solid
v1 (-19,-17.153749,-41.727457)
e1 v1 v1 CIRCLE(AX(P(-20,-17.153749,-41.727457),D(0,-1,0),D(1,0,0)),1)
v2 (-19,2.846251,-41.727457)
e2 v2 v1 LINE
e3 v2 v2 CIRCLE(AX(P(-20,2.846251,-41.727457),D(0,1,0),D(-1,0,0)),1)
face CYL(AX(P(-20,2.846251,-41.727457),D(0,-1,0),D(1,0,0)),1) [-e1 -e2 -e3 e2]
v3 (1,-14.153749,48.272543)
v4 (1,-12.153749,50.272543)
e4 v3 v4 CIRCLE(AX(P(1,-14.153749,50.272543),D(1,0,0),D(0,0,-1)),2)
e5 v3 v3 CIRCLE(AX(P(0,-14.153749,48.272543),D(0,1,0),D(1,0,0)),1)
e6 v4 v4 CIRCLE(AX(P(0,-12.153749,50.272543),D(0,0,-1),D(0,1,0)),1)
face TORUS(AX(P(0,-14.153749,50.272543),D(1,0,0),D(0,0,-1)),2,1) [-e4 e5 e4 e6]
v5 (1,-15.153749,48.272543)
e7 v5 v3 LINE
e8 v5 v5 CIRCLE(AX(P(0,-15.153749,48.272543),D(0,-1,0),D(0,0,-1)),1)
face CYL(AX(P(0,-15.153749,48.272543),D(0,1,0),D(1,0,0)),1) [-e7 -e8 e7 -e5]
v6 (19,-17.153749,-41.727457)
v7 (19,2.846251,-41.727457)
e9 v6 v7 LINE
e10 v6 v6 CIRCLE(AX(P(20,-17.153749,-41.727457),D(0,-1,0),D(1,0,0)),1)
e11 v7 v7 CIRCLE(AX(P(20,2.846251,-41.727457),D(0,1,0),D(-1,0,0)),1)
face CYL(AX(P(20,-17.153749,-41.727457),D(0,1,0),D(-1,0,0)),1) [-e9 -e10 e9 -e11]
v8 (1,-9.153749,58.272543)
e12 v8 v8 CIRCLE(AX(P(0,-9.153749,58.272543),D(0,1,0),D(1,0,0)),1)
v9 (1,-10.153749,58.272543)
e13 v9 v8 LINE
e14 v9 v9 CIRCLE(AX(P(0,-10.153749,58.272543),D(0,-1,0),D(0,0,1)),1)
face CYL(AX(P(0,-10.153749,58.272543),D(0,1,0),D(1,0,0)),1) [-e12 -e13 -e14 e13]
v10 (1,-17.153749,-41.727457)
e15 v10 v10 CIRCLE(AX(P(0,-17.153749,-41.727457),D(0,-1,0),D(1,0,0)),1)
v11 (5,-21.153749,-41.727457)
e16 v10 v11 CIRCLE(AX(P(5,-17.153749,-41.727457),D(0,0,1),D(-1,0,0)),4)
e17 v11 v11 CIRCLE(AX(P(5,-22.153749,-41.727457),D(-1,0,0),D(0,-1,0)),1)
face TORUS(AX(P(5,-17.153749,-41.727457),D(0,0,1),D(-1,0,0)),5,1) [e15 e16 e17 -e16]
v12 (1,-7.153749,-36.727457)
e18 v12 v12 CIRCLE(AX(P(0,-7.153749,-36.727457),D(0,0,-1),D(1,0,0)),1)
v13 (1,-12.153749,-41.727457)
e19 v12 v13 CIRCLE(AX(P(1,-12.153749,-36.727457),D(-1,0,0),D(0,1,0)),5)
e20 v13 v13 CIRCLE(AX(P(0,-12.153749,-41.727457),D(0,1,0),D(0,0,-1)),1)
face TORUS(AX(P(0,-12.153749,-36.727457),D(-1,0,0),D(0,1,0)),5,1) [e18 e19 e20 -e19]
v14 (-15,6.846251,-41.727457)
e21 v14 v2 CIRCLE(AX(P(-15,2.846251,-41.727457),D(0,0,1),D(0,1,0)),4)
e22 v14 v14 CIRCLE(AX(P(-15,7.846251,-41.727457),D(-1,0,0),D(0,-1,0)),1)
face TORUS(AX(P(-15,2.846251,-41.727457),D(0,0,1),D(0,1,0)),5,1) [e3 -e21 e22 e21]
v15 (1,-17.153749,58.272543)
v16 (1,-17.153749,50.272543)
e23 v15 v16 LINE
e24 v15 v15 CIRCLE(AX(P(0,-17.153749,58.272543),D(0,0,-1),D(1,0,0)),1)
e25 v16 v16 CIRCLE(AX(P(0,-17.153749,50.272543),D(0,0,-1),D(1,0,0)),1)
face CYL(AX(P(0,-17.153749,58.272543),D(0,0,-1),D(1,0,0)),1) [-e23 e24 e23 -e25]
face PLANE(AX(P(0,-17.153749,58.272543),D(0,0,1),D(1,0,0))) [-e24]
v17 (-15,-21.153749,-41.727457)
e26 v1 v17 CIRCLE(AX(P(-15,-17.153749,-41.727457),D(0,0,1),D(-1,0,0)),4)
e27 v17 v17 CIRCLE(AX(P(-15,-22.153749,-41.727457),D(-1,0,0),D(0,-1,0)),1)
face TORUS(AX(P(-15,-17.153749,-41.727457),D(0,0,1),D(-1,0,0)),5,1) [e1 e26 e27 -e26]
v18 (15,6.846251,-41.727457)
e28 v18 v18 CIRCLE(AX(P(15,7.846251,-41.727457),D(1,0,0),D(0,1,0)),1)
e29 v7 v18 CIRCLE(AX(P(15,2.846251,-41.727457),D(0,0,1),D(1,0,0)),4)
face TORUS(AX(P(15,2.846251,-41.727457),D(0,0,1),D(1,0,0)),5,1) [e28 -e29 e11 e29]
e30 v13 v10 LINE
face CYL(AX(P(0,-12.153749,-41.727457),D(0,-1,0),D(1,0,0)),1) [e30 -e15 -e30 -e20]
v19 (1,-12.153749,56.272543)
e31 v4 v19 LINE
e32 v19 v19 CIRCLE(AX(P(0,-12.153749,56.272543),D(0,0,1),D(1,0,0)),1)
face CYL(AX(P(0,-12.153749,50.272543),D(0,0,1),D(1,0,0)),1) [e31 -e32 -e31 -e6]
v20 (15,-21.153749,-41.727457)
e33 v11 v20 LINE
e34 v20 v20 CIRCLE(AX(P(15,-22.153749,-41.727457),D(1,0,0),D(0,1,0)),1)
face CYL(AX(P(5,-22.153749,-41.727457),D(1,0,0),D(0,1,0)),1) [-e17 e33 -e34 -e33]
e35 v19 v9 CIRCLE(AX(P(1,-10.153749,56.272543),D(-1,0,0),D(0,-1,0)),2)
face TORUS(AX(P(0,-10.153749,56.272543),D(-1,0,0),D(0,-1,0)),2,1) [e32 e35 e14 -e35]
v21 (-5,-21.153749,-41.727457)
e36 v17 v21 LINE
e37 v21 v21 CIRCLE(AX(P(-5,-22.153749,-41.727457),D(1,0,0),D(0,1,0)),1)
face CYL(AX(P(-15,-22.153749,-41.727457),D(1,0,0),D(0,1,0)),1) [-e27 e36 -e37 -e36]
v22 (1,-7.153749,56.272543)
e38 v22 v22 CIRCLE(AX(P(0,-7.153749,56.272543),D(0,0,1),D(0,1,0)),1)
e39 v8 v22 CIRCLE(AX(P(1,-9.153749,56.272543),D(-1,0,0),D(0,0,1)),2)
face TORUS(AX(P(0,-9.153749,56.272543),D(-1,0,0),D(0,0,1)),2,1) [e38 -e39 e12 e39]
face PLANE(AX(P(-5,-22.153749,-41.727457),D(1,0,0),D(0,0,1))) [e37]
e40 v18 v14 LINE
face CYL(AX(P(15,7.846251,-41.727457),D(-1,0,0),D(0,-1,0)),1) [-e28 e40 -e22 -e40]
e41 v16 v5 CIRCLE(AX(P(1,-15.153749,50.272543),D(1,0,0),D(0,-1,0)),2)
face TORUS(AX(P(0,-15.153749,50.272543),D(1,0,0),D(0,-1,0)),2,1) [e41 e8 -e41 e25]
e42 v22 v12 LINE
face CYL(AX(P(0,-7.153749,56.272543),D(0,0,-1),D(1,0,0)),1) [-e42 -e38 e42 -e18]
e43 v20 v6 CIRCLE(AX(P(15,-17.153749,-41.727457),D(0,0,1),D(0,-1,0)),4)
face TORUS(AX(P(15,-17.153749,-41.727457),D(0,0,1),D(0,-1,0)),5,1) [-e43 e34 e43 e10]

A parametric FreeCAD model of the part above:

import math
import FreeCAD as App
import Part
import Sketcher

doc = App.newDocument("Part")
body = doc.addObject("PartDesign::Body", "Body")

# Sketch on XY plane
sketch1 = doc.addObject("Sketcher::SketchObject", "Sketch")
body.addObject(sketch1)
sketch1.AttachmentSupport = (doc.XY_Plane, [""])
sketch1.MapMode = "FlatFace"
sketch1.AttachmentOffset = App.Placement(App.Vector(0, 0, 58.272543), App.Rotation())
sketch1.addGeometry(Part.Circle(App.Vector(0, -17.2, 0), App.Vector(0, 0, 1), 1), False)
sketch1.addConstraint([
    Sketcher.Constraint("PointOnObject", 0, 3, -2),
    Sketcher.Constraint("Diameter", 0, 2.0),
    Sketcher.Constraint("DistanceY", 0, 3, -1, 1, 17.153749),
])

# Sketch on YZ plane
sketch2 = doc.addObject("Sketcher::SketchObject", "Sketch001")
body.addObject(sketch2)
sketch2.AttachmentSupport = (doc.YZ_Plane, [""])
sketch2.MapMode = "FlatFace"
sketch2.addGeometry([
    Part.LineSegment(App.Vector(-17.2, 58.3, 0), App.Vector(-17.2, 50.3, 0)),  # 0
    Part.ArcOfCircle(Part.Circle(App.Vector(-15.2, 50.3, 0), App.Vector(0, 0, 1), 2), math.radians(-180), math.radians(-90)),  # 1
    Part.LineSegment(App.Vector(-15.2, 48.3, 0), App.Vector(-14.2, 48.3, 0)),  # 2
    Part.ArcOfCircle(Part.Circle(App.Vector(-14.2, 50.3, 0), App.Vector(0, 0, 1), 2), math.radians(-90), math.radians(0)),  # 3
    Part.LineSegment(App.Vector(-12.2, 50.3, 0), App.Vector(-12.2, 56.3, 0)),  # 4
    Part.ArcOfCircle(Part.Circle(App.Vector(-10.2, 56.3, 0), App.Vector(0, 0, 1), 2), math.radians(90), math.radians(180)),  # 5
    Part.LineSegment(App.Vector(-10.2, 58.3, 0), App.Vector(-9.2, 58.3, 0)),  # 6
    Part.ArcOfCircle(Part.Circle(App.Vector(-9.2, 56.3, 0), App.Vector(0, 0, 1), 2), math.radians(0), math.radians(90)),  # 7
    Part.LineSegment(App.Vector(-7.2, 56.3, 0), App.Vector(-7.2, -36.7, 0)),  # 8
    Part.ArcOfCircle(Part.Circle(App.Vector(-12.2, -36.7, 0), App.Vector(0, 0, 1), 5), math.radians(-90), math.radians(0)),  # 9
    Part.LineSegment(App.Vector(-12.2, -41.7, 0), App.Vector(-17.2, -41.7, 0)),  # 10
], False)
sketch2.addConstraint([
    Sketcher.Constraint("Tangent", 0, 2, 1, 1),
    Sketcher.Constraint("Tangent", 1, 2, 2, 1),
    Sketcher.Constraint("Tangent", 2, 2, 3, 1),
    Sketcher.Constraint("Tangent", 3, 2, 4, 1),
    Sketcher.Constraint("Tangent", 4, 2, 5, 2),
    Sketcher.Constraint("Tangent", 5, 1, 6, 1),
    Sketcher.Constraint("Tangent", 6, 2, 7, 2),
    Sketcher.Constraint("Tangent", 7, 1, 8, 1),
    Sketcher.Constraint("Tangent", 8, 2, 9, 2),
    Sketcher.Constraint("Tangent", 9, 1, 10, 1),
    Sketcher.Constraint("Vertical", 0),
    Sketcher.Constraint("Horizontal", 2),
    Sketcher.Constraint("Vertical", 4),
    Sketcher.Constraint("Horizontal", 6),
    Sketcher.Constraint("Vertical", 8),
    Sketcher.Constraint("Horizontal", 10),
    Sketcher.Constraint("Equal", 1, 3),
    Sketcher.Constraint("Equal", 3, 5),
    Sketcher.Constraint("Equal", 5, 7),
    Sketcher.Constraint("Horizontal", 0, 1, 5, 1),
    Sketcher.Constraint("Vertical", 9, 3, 3, 2),
    Sketcher.Constraint("Vertical", 0, 2, 10, 2),
    Sketcher.Constraint("Equal", 2, 6),
    Sketcher.Constraint("Radius", 1, 2.0),
    Sketcher.Constraint("Radius", 9, 5.0),
    Sketcher.Constraint("DistanceY", 0, 2, 0, 1, 8.0),
    Sketcher.Constraint("DistanceY", 8, 2, 8, 1, 93.0),
    Sketcher.Constraint("DistanceX", 1, 3, -1, 1, 15.153749),
    Sketcher.Constraint("DistanceY", -1, 1, 1, 3, 50.272543),
])
doc.recompute()

additivepipe = doc.addObject("PartDesign::AdditivePipe", "AdditivePipe")
body.addObject(additivepipe)
additivepipe.Profile = sketch1
additivepipe.Spine = (sketch2, ["Edge1", "Edge2", "Edge3", "Edge4", "Edge5", "Edge6", "Edge7", "Edge8", "Edge9", "Edge10", "Edge11"])

# Sketch on XZ plane
sketch3 = doc.addObject("Sketcher::SketchObject", "Sketch002")
body.addObject(sketch3)
sketch3.AttachmentSupport = (doc.XZ_Plane, [""])
sketch3.MapMode = "FlatFace"
sketch3.AttachmentOffset = App.Placement(App.Vector(0, 0, 17.153749), App.Rotation())
sketch3.addGeometry(Part.Circle(App.Vector(0, -41.7, 0), App.Vector(0, 0, 1), 1), False)
sketch3.addConstraint([
    Sketcher.Constraint("PointOnObject", 0, 3, -2),
    Sketcher.Constraint("Diameter", 0, 2.0),
    Sketcher.Constraint("DistanceY", 0, 3, -1, 1, 41.727457),
])

# Sketch on XY plane
sketch4 = doc.addObject("Sketcher::SketchObject", "Sketch003")
body.addObject(sketch4)
sketch4.AttachmentSupport = (doc.XY_Plane, [""])
sketch4.MapMode = "FlatFace"
sketch4.AttachmentOffset = App.Placement(App.Vector(0, 0, -41.727457), App.Rotation())
sketch4.addGeometry([
    Part.ArcOfCircle(Part.Circle(App.Vector(5, -17, 0), App.Vector(0, 0, 1), 5), math.radians(180), math.radians(270)),  # 0
    Part.LineSegment(App.Vector(5, -22, 0), App.Vector(15, -22, 0)),  # 1
    Part.ArcOfCircle(Part.Circle(App.Vector(15, -17, 0), App.Vector(0, 0, 1), 5), math.radians(-90), math.radians(0)),  # 2
    Part.LineSegment(App.Vector(20, -17, 0), App.Vector(20, 3, 0)),  # 3
    Part.ArcOfCircle(Part.Circle(App.Vector(15, 3, 0), App.Vector(0, 0, 1), 5), math.radians(0), math.radians(90)),  # 4
    Part.LineSegment(App.Vector(15, 8, 0), App.Vector(-15, 8, 0)),  # 5
    Part.ArcOfCircle(Part.Circle(App.Vector(-15, 3, 0), App.Vector(0, 0, 1), 5), math.radians(90), math.radians(180)),  # 6
    Part.LineSegment(App.Vector(-20, 3, 0), App.Vector(-20, -17, 0)),  # 7
    Part.ArcOfCircle(Part.Circle(App.Vector(-15, -17, 0), App.Vector(0, 0, 1), 5), math.radians(180), math.radians(270)),  # 8
    Part.LineSegment(App.Vector(-15, -22, 0), App.Vector(-5, -22, 0)),  # 9
], False)
sketch4.addConstraint([
    Sketcher.Constraint("Tangent", 0, 2, 1, 1),
    Sketcher.Constraint("Tangent", 1, 2, 2, 1),
    Sketcher.Constraint("Tangent", 2, 2, 3, 1),
    Sketcher.Constraint("Tangent", 3, 2, 4, 1),
    Sketcher.Constraint("Tangent", 4, 2, 5, 1),
    Sketcher.Constraint("Tangent", 5, 2, 6, 1),
    Sketcher.Constraint("Tangent", 6, 2, 7, 1),
    Sketcher.Constraint("Tangent", 7, 2, 8, 1),
    Sketcher.Constraint("Tangent", 8, 2, 9, 1),
    Sketcher.Constraint("Horizontal", 1),
    Sketcher.Constraint("Vertical", 3),
    Sketcher.Constraint("Horizontal", 5),
    Sketcher.Constraint("Vertical", 7),
    Sketcher.Constraint("Horizontal", 9),
    Sketcher.Constraint("Equal", 0, 2),
    Sketcher.Constraint("Equal", 2, 4),
    Sketcher.Constraint("Equal", 4, 6),
    Sketcher.Constraint("Equal", 6, 8),
    Sketcher.Constraint("Symmetric", 2, 3, 8, 3, -2),
    Sketcher.Constraint("PointOnObject", 0, 1, -2),
    Sketcher.Constraint("Horizontal", 8, 3, 0, 1),
    Sketcher.Constraint("Equal", 1, 9),
    Sketcher.Constraint("Radius", 0, 5.0),
    Sketcher.Constraint("DistanceX", 1, 1, 1, 2, 10.0),
    Sketcher.Constraint("DistanceY", 3, 1, 3, 2, 20.0),
    Sketcher.Constraint("DistanceY", 0, 3, -1, 1, 17.153749),
])
doc.recompute()

additivepipe2 = doc.addObject("PartDesign::AdditivePipe", "AdditivePipe001")
body.addObject(additivepipe2)
additivepipe2.Profile = sketch3
additivepipe2.Spine = (sketch4, ["Edge1", "Edge2", "Edge3", "Edge4", "Edge5", "Edge6", "Edge7", "Edge8", "Edge9", "Edge10"])

doc.recompute()
